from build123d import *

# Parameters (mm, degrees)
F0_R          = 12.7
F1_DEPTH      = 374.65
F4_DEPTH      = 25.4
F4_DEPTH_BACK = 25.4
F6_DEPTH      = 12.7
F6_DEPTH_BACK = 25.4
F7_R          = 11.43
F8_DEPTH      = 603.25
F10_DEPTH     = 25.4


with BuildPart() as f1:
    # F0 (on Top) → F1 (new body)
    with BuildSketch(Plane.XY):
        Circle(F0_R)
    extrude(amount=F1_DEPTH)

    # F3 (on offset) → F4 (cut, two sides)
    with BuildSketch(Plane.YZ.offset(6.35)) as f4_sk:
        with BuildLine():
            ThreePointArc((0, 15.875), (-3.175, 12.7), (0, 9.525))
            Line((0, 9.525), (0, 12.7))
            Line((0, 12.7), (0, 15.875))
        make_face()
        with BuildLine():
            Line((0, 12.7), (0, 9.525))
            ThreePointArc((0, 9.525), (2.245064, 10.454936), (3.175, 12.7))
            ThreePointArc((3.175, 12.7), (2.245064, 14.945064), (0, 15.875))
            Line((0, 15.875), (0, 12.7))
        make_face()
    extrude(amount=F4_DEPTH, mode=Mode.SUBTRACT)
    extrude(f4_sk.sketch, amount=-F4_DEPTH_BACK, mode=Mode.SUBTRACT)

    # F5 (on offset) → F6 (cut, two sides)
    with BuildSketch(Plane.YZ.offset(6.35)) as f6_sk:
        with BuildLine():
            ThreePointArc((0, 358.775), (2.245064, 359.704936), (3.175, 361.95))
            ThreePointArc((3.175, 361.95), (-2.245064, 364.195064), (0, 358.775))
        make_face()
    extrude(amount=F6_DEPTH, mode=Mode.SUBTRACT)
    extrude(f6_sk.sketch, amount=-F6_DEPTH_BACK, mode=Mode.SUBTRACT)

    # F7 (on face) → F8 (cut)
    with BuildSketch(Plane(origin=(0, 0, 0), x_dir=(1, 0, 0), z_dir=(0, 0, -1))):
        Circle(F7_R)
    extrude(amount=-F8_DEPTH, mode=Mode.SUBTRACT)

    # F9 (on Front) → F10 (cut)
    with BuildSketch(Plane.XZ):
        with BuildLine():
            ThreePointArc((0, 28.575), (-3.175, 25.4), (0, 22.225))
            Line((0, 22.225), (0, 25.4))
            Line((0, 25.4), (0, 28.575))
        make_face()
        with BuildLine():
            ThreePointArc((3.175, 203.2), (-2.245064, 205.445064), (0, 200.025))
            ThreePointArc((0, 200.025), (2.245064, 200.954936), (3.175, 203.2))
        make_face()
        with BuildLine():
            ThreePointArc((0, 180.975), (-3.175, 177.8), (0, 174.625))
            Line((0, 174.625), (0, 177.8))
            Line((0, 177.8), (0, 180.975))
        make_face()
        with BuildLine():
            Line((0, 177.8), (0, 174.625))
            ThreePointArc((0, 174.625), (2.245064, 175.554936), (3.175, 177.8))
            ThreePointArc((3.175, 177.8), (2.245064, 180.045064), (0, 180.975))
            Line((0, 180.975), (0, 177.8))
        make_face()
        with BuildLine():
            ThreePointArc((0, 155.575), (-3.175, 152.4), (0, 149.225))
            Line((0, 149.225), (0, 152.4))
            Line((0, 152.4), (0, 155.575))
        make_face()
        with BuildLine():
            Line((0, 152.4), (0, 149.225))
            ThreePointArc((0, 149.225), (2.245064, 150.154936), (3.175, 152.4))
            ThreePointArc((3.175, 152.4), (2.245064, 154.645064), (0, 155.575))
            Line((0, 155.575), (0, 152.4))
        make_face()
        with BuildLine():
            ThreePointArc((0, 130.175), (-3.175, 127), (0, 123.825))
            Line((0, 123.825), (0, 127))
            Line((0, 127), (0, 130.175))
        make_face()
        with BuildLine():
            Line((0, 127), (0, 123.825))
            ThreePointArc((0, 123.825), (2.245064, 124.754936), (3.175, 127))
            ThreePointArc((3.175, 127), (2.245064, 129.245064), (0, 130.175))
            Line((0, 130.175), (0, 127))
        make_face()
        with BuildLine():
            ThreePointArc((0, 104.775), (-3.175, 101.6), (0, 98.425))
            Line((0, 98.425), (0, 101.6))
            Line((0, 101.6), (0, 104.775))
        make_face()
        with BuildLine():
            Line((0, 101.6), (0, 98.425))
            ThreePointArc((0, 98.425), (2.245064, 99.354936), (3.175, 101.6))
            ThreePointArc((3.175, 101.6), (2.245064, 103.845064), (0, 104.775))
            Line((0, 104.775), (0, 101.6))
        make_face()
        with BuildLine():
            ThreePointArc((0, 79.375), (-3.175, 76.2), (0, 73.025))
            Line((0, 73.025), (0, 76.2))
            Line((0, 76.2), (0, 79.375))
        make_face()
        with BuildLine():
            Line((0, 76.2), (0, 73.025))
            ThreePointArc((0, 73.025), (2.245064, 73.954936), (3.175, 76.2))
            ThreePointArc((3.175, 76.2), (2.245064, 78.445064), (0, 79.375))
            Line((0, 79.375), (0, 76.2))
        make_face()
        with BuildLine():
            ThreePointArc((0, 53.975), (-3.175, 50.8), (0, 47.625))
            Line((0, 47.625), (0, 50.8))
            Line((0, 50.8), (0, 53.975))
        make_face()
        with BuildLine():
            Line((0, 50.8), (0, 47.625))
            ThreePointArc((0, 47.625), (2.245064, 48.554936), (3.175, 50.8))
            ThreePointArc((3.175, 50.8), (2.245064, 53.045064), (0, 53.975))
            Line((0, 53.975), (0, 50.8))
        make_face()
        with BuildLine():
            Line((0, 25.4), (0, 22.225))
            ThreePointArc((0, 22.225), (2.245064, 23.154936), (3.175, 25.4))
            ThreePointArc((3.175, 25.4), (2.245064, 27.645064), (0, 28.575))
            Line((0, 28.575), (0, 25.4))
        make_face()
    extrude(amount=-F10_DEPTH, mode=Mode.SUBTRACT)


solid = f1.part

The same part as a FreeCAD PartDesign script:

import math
import FreeCAD as App
import Part
import Sketcher
from FreeCAD import Vector
Q = App.Units.Quantity

doc = App.newDocument("Part")
body = doc.addObject("PartDesign::Body", "Body")

sketch1 = doc.addObject("Sketcher::SketchObject", "Sketch")
body.addObject(sketch1)
sketch1.AttachmentSupport = (doc.XY_Plane, [""])
sketch1.MapMode = "FlatFace"
sketch1.addGeometry(Part.Circle(Vector(0, 0, 0), Vector(0, 0, 1), 13), False)
sketch1.addConstraint([
    Sketcher.Constraint("Coincident", 0, 3, -1, 1),
    Sketcher.Constraint("Diameter", 0, Q("1 in")),
])
pad1 = doc.addObject("PartDesign::Pad", "Pad")
body.addObject(pad1)
pad1.Profile = sketch1
pad1.Length = Q("14.75 in")

sketch2 = doc.addObject("Sketcher::SketchObject", "Sketch001")
body.addObject(sketch2)
sketch2.AttachmentSupport = (doc.YZ_Plane, [""])
sketch2.MapMode = "FlatFace"
sketch2.AttachmentOffset = App.Placement(Vector(0, 0, 0.25 * 25.4), App.Rotation())
sketch2.addGeometry([
    Part.ArcOfCircle(Part.Circle(Vector(0, 12.7, 0), Vector(0, 0, 1), 3.2), math.radians(90), math.radians(270)),
    Part.ArcOfCircle(Part.Circle(Vector(0, 12.7, 0), Vector(0, 0, 1), 3.2), math.radians(-90), math.radians(0)),
    Part.ArcOfCircle(Part.Circle(Vector(0, 12.7, 0), Vector(0, 0, 1), 3.2), math.radians(0), math.radians(90)),
], False)
sketch2.addConstraint([
    Sketcher.Constraint("Tangent", 0, 2, 1, 1),
    Sketcher.Constraint("Tangent", 1, 2, 2, 1),
    Sketcher.Constraint("Tangent", 2, 2, 0, 1),
    Sketcher.Constraint("PointOnObject", 0, 3, -2),
    Sketcher.Constraint("PointOnObject", 0, 2, -2),
    Sketcher.Constraint("PointOnObject", 2, 2, -2),
    Sketcher.Constraint("Horizontal", 2, 3, 1, 2),
    Sketcher.Constraint("Radius", 0, Q("0.125 in")),
    Sketcher.Constraint("DistanceY", -1, 1, 0, 3, Q("0.5 in")),
])
pocket1 = doc.addObject("PartDesign::Pocket", "Pocket")
body.addObject(pocket1)
pocket1.Profile = sketch2
pocket1.Type = "ThroughAll"
pocket1.Midplane = True

sketch3 = doc.addObject("Sketcher::SketchObject", "Sketch002")
body.addObject(sketch3)
sketch3.AttachmentSupport = (doc.YZ_Plane, [""])
sketch3.MapMode = "FlatFace"
sketch3.AttachmentOffset = App.Placement(Vector(0, 0, 0.25 * 25.4), App.Rotation())
sketch3.addGeometry([
    Part.ArcOfCircle(Part.Circle(Vector(0, 362, 0), Vector(0, 0, 1), 3.2), math.radians(-90), math.radians(0)),
    Part.ArcOfCircle(Part.Circle(Vector(0, 361.9, 0), Vector(0, 0, 1), 3.2), math.radians(0), math.radians(270)),
], False)
sketch3.addConstraint([
    Sketcher.Constraint("Tangent", 0, 1, 1, 2),
    Sketcher.Constraint("Coincident", 1, 1, 0, 2),
    Sketcher.Constraint("PointOnObject", 0, 3, -2),
    Sketcher.Constraint("PointOnObject", 0, 1, -2),
    Sketcher.Constraint("Horizontal", 0, 3, 1, 1),
    Sketcher.Constraint("Radius", 0, Q("0.125 in")),
    Sketcher.Constraint("DistanceY", -1, 1, 0, 3, Q("14.25 in")),
])
pocket2 = doc.addObject("PartDesign::Pocket", "Pocket001")
body.addObject(pocket2)
pocket2.Profile = sketch3
pocket2.Type = "ThroughAll"
pocket2.Midplane = True

sketch4 = doc.addObject("Sketcher::SketchObject", "Sketch003")
body.addObject(sketch4)
sketch4.AttachmentSupport = (doc.XY_Plane, [""])
sketch4.MapMode = "FlatFace"
sketch4.addGeometry(Part.Circle(Vector(0, 0, 0), Vector(0, 0, 1), 11), False)
sketch4.addConstraint([
    Sketcher.Constraint("Coincident", 0, 3, -1, 1),
    Sketcher.Constraint("Diameter", 0, Q("0.9 in")),
])
pocket3 = doc.addObject("PartDesign::Pocket", "Pocket002")
body.addObject(pocket3)
pocket3.Profile = sketch4
pocket3.Length = Q("23.75 in")
pocket3.Reversed = True

sketch5 = doc.addObject("Sketcher::SketchObject", "Sketch004")
body.addObject(sketch5)
sketch5.AttachmentSupport = (doc.XZ_Plane, [""])
sketch5.MapMode = "FlatFace"
sketch5.addGeometry([
    Part.ArcOfCircle(Part.Circle(Vector(0, 25.4, 0), Vector(0, 0, 1), 3.2), math.radians(90), math.radians(270)),
    Part.ArcOfCircle(Part.Circle(Vector(0, 25.4, 0), Vector(0, 0, 1), 3.2), math.radians(-90), math.radians(0)),
    Part.ArcOfCircle(Part.Circle(Vector(0, 25.4, 0), Vector(0, 0, 1), 3.2), math.radians(0), math.radians(90)),
    Part.ArcOfCircle(Part.Circle(Vector(0, 203.2, 0), Vector(0, 0, 1), 3.2), math.radians(0), math.radians(270)),
    Part.ArcOfCircle(Part.Circle(Vector(0, 203.2, 0), Vector(0, 0, 1), 3.2), math.radians(-90), math.radians(0)),
    Part.ArcOfCircle(Part.Circle(Vector(0, 177.8, 0), Vector(0, 0, 1), 3.2), math.radians(90), math.radians(270)),
    Part.ArcOfCircle(Part.Circle(Vector(0, 177.8, 0), Vector(0, 0, 1), 3.2), math.radians(-90), math.radians(0)),
    Part.ArcOfCircle(Part.Circle(Vector(0, 177.8, 0), Vector(0, 0, 1), 3.2), math.radians(0), math.radians(90)),
    Part.ArcOfCircle(Part.Circle(Vector(0, 152.4, 0), Vector(0, 0, 1), 3.2), math.radians(90), math.radians(270)),
    Part.ArcOfCircle(Part.Circle(Vector(0, 152.4, 0), Vector(0, 0, 1), 3.2), math.radians(-90), math.radians(0)),
    Part.ArcOfCircle(Part.Circle(Vector(0, 152.4, 0), Vector(0, 0, 1), 3.2), math.radians(0), math.radians(90)),
    Part.ArcOfCircle(Part.Circle(Vector(0, 127, 0), Vector(0, 0, 1), 3.2), math.radians(90), math.radians(270)),
    Part.ArcOfCircle(Part.Circle(Vector(0, 127, 0), Vector(0, 0, 1), 3.2), math.radians(-90), math.radians(0)),
    Part.ArcOfCircle(Part.Circle(Vector(0, 127, 0), Vector(0, 0, 1), 3.2), math.radians(0), math.radians(90)),
    Part.ArcOfCircle(Part.Circle(Vector(0, 101.6, 0), Vector(0, 0, 1), 3.2), math.radians(90), math.radians(270)),
    Part.ArcOfCircle(Part.Circle(Vector(0, 101.6, 0), Vector(0, 0, 1), 3.2), math.radians(-90), math.radians(0)),
    Part.ArcOfCircle(Part.Circle(Vector(0, 101.6, 0), Vector(0, 0, 1), 3.2), math.radians(0), math.radians(90)),
    Part.ArcOfCircle(Part.Circle(Vector(0, 76.2, 0), Vector(0, 0, 1), 3.2), math.radians(90), math.radians(270)),
    Part.ArcOfCircle(Part.Circle(Vector(0, 76.2, 0), Vector(0, 0, 1), 3.2), math.radians(-90), math.radians(0)),
    Part.ArcOfCircle(Part.Circle(Vector(0, 76.2, 0), Vector(0, 0, 1), 3.2), math.radians(0), math.radians(90)),
    Part.ArcOfCircle(Part.Circle(Vector(0, 50.8, 0), Vector(0, 0, 1), 3.2), math.radians(90), math.radians(270)),
    Part.ArcOfCircle(Part.Circle(Vector(0, 50.8, 0), Vector(0, 0, 1), 3.2), math.radians(-90), math.radians(0)),
    Part.ArcOfCircle(Part.Circle(Vector(0, 50.8, 0), Vector(0, 0, 1), 3.2), math.radians(0), math.radians(90)),
], False)
sketch5.addConstraint([
    Sketcher.Constraint("Tangent", 0, 2, 1, 1),
    Sketcher.Constraint("Tangent", 1, 2, 2, 1),
    Sketcher.Constraint("Tangent", 2, 2, 0, 1),
    Sketcher.Constraint("Tangent", 3, 1, 4, 2),
    Sketcher.Constraint("Coincident", 4, 1, 3, 2),
    Sketcher.Constraint("Tangent", 5, 2, 6, 1),
    Sketcher.Constraint("Tangent", 6, 2, 7, 1),
    Sketcher.Constraint("Tangent", 7, 2, 5, 1),
    Sketcher.Constraint("Tangent", 8, 2, 9, 1),
    Sketcher.Constraint("Tangent", 9, 2, 10, 1),
    Sketcher.Constraint("Tangent", 10, 2, 8, 1),
    Sketcher.Constraint("Tangent", 11, 2, 12, 1),
    Sketcher.Constraint("Tangent", 12, 2, 13, 1),
    Sketcher.Constraint("Tangent", 13, 2, 11, 1),
    Sketcher.Constraint("Tangent", 14, 2, 15, 1),
    Sketcher.Constraint("Tangent", 15, 2, 16, 1),
    Sketcher.Constraint("Tangent", 16, 2, 14, 1),
    Sketcher.Constraint("Tangent", 17, 2, 18, 1),
    Sketcher.Constraint("Tangent", 18, 2, 19, 1),
    Sketcher.Constraint("Tangent", 19, 2, 17, 1),
    Sketcher.Constraint("Tangent", 20, 2, 21, 1),
    Sketcher.Constraint("Tangent", 21, 2, 22, 1),
    Sketcher.Constraint("Tangent", 22, 2, 20, 1),
    Sketcher.Constraint("Equal", 2, 3),
    Sketcher.Constraint("Equal", 4, 5),
    Sketcher.Constraint("Equal", 7, 8),
    Sketcher.Constraint("Equal", 10, 11),
    Sketcher.Constraint("Equal", 13, 14),
    Sketcher.Constraint("Equal", 16, 17),
    Sketcher.Constraint("Equal", 19, 20),
    Sketcher.Constraint("PointOnObject", 0, 3, -2),
    Sketcher.Constraint("PointOnObject", 3, 3, -2),
    Sketcher.Constraint("PointOnObject", 5, 3, -2),
    Sketcher.Constraint("PointOnObject", 8, 3, -2),
    Sketcher.Constraint("PointOnObject", 11, 3, -2),
    Sketcher.Constraint("PointOnObject", 14, 3, -2),
    Sketcher.Constraint("PointOnObject", 17, 3, -2),
    Sketcher.Constraint("PointOnObject", 20, 3, -2),
    Sketcher.Constraint("PointOnObject", 0, 2, -2),
    Sketcher.Constraint("PointOnObject", 2, 2, -2),
    Sketcher.Constraint("PointOnObject", 4, 1, -2),
    Sketcher.Constraint("PointOnObject", 5, 2, -2),
    Sketcher.Constraint("PointOnObject", 7, 2, -2),
    Sketcher.Constraint("PointOnObject", 8, 2, -2),
    Sketcher.Constraint("PointOnObject", 10, 2, -2),
    Sketcher.Constraint("PointOnObject", 11, 2, -2),
    Sketcher.Constraint("PointOnObject", 13, 2, -2),
    Sketcher.Constraint("PointOnObject", 14, 2, -2),
    Sketcher.Constraint("PointOnObject", 16, 2, -2),
    Sketcher.Constraint("PointOnObject", 17, 2, -2),
    Sketcher.Constraint("PointOnObject", 19, 2, -2),
    Sketcher.Constraint("PointOnObject", 20, 2, -2),
    Sketcher.Constraint("PointOnObject", 22, 2, -2),
    Sketcher.Constraint("Horizontal", 2, 3, 1, 2),
    Sketcher.Constraint("Horizontal", 4, 3, 3, 1),
    Sketcher.Constraint("Horizontal", 7, 3, 6, 2),
    Sketcher.Constraint("Horizontal", 10, 3, 9, 2),
    Sketcher.Constraint("Horizontal", 13, 3, 12, 2),
    Sketcher.Constraint("Horizontal", 16, 3, 15, 2),
    Sketcher.Constraint("Horizontal", 19, 3, 18, 2),
    Sketcher.Constraint("Horizontal", 22, 3, 21, 2),
    Sketcher.Constraint("DistanceY", -1, 1, 0, 3, Q("1 in")),
    Sketcher.Constraint("DistanceY", -1, 1, 3, 3, Q("8 in")),
    Sketcher.Constraint("DistanceY", -1, 1, 5, 3, Q("7 in")),
    Sketcher.Constraint("DistanceY", -1, 1, 8, 3, Q("6 in")),
    Sketcher.Constraint("DistanceY", -1, 1, 11, 3, Q("5 in")),
    Sketcher.Constraint("DistanceY", -1, 1, 14, 3, Q("4 in")),
    Sketcher.Constraint("DistanceY", -1, 1, 17, 3, Q("3 in")),
    Sketcher.Constraint("DistanceY", -1, 1, 20, 3, Q("2 in")),
    Sketcher.Constraint("Radius", 0, Q("0.125 in")),
])
pocket4 = doc.addObject("PartDesign::Pocket", "Pocket003")
body.addObject(pocket4)
pocket4.Profile = sketch5
pocket4.Length = Q("1 in")

doc.recompute()
